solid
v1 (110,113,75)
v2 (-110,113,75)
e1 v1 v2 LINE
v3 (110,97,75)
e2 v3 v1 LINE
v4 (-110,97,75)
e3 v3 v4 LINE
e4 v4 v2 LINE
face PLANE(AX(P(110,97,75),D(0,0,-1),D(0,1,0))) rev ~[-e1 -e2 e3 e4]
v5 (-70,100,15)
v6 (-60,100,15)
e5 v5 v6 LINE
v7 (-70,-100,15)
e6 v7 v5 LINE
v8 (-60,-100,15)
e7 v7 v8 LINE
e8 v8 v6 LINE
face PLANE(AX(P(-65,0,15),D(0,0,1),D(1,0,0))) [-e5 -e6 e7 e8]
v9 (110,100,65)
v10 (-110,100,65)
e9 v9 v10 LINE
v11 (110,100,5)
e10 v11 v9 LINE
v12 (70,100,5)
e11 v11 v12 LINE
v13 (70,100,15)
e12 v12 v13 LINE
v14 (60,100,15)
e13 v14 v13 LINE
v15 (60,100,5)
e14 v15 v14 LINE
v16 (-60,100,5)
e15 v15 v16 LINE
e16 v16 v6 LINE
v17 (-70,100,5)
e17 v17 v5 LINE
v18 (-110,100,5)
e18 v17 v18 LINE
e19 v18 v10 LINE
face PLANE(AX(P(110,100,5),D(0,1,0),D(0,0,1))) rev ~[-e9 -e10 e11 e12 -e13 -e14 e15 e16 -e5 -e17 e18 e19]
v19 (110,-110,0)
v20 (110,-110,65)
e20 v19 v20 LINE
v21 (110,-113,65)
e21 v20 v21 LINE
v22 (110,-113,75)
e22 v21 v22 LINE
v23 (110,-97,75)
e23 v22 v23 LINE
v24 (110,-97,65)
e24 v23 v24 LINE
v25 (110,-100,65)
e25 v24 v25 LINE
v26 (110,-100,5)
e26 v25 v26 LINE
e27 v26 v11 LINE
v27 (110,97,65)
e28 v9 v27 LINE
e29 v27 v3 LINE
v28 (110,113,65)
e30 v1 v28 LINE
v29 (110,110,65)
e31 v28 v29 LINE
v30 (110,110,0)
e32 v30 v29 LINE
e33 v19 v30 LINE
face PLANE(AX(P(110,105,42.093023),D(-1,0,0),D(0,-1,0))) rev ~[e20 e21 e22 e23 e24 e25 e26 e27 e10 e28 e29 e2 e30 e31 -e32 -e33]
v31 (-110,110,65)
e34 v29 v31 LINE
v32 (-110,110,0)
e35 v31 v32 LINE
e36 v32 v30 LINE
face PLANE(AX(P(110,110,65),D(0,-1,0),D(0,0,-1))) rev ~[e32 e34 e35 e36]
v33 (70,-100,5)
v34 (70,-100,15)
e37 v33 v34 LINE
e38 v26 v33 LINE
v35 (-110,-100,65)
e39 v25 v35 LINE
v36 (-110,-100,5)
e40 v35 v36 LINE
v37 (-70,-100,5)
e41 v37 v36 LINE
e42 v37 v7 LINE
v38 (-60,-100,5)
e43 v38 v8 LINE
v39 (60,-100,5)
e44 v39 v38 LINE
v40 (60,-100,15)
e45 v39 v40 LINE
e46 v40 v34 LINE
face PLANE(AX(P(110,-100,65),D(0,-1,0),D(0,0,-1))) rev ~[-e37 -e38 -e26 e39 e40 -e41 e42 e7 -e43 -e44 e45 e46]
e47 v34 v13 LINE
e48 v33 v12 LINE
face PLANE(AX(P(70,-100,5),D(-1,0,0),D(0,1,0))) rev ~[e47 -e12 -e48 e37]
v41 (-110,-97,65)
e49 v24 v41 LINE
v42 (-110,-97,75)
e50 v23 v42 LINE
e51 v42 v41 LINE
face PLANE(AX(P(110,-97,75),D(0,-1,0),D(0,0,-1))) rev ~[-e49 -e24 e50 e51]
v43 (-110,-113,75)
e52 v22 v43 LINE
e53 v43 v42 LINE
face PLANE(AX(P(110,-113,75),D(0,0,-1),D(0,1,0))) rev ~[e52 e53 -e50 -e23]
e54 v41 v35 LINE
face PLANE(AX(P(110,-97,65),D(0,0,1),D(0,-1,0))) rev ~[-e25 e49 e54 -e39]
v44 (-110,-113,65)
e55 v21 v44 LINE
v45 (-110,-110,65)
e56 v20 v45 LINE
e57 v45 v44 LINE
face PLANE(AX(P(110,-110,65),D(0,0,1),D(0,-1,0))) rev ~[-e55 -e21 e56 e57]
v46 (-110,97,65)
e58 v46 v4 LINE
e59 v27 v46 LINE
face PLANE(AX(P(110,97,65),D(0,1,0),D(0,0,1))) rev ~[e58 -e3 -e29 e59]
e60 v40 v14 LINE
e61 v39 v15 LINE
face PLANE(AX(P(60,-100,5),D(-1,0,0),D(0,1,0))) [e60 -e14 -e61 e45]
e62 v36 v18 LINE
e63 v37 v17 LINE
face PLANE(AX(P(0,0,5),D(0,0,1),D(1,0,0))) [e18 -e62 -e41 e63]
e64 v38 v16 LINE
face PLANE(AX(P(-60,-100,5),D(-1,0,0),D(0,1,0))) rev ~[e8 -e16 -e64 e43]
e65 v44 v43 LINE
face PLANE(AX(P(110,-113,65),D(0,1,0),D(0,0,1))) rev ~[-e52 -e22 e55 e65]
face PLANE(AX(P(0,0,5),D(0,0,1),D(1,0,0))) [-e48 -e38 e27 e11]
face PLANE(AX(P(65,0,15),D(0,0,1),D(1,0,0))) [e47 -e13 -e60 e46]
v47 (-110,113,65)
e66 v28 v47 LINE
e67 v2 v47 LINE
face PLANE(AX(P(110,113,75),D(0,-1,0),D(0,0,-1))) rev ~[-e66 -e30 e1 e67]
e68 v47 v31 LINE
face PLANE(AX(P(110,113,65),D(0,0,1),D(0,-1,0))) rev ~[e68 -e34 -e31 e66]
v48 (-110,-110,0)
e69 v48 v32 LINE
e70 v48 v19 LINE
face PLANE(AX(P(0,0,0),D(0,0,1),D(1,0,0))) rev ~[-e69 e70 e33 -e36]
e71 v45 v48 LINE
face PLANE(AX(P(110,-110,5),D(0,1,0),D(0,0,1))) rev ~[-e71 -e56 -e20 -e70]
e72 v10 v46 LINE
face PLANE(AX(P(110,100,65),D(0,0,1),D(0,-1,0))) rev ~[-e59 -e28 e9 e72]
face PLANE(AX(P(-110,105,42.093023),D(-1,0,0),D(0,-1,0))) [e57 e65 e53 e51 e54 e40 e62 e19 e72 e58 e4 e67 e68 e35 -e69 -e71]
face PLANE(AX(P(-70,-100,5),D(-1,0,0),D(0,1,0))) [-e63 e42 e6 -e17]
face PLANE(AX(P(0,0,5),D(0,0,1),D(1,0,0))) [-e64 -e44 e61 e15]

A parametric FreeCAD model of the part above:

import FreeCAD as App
import Part
import Sketcher

V = App.Vector

doc = App.newDocument("Part")
body = doc.addObject("PartDesign::Body", "Body")

# Sketch on XY plane
sketch1 = body.newObject("Sketcher::SketchObject", "Sketch")
sketch1.AttachmentSupport = (doc.getObject("XY_Plane"), [""])
sketch1.MapMode = "FlatFace"
sketch1.addGeometry(Part.LineSegment(V(-110, 110, 0), V(-110, -110, 0)), False)
sketch1.addGeometry(Part.LineSegment(V(-110, -110, 0), V(110, -110, 0)), False)
sketch1.addGeometry(Part.LineSegment(V(110, -110, 0), V(110, 110, 0)), False)
sketch1.addGeometry(Part.LineSegment(V(110, 110, 0), V(-110, 110, 0)), False)
sketch1.addConstraint(Sketcher.Constraint("Coincident", 0, 2, 1, 1))
sketch1.addConstraint(Sketcher.Constraint("Coincident", 1, 2, 2, 1))
sketch1.addConstraint(Sketcher.Constraint("Coincident", 2, 2, 3, 1))
sketch1.addConstraint(Sketcher.Constraint("Coincident", 3, 2, 0, 1))
sketch1.addConstraint(Sketcher.Constraint("Vertical", 0))
sketch1.addConstraint(Sketcher.Constraint("Horizontal", 1))
sketch1.addConstraint(Sketcher.Constraint("Vertical", 2))
sketch1.addConstraint(Sketcher.Constraint("Horizontal", 3))
sketch1.addConstraint(Sketcher.Constraint("Symmetric", 0, 2, 2, 2, -1, 1))
sketch1.addConstraint(Sketcher.Constraint("Equal", 3, 0))
sketch1.addConstraint(Sketcher.Constraint("DistanceX", 1, 1, 1, 2, 220.0))
pad1 = body.newObject("PartDesign::Pad", "Pad")
pad1.Profile = sketch1
pad1.Length = 5

# Sketch on YZ plane
sketch2 = body.newObject("Sketcher::SketchObject", "Sketch001")
sketch2.AttachmentSupport = (doc.getObject("YZ_Plane"), [""])
sketch2.MapMode = "FlatFace"
sketch2.AttachmentOffset = App.Placement(V(0, 0, 110), App.Rotation())
sketch2.addGeometry(Part.LineSegment(V(-110, 65, 0), V(-110, 5, 0)), False)
sketch2.addGeometry(Part.LineSegment(V(-110, 5, 0), V(-100, 5, 0)), False)
sketch2.addGeometry(Part.LineSegment(V(-100, 5, 0), V(-100, 65, 0)), False)
sketch2.addGeometry(Part.LineSegment(V(-100, 65, 0), V(-97, 65, 0)), False)
sketch2.addGeometry(Part.LineSegment(V(-97, 65, 0), V(-97, 75, 0)), False)
sketch2.addGeometry(Part.LineSegment(V(-97, 75, 0), V(-113, 75, 0)), False)
sketch2.addGeometry(Part.LineSegment(V(-113, 75, 0), V(-113, 65, 0)), False)
sketch2.addGeometry(Part.LineSegment(V(-113, 65, 0), V(-110, 65, 0)), False)
sketch2.addConstraint(Sketcher.Constraint("Coincident", 0, 2, 1, 1))
sketch2.addConstraint(Sketcher.Constraint("Coincident", 1, 2, 2, 1))
sketch2.addConstraint(Sketcher.Constraint("Coincident", 2, 2, 3, 1))
sketch2.addConstraint(Sketcher.Constraint("Coincident", 3, 2, 4, 1))
sketch2.addConstraint(Sketcher.Constraint("Coincident", 4, 2, 5, 1))
sketch2.addConstraint(Sketcher.Constraint("Coincident", 5, 2, 6, 1))
sketch2.addConstraint(Sketcher.Constraint("Coincident", 6, 2, 7, 1))
sketch2.addConstraint(Sketcher.Constraint("Coincident", 7, 2, 0, 1))
sketch2.addConstraint(Sketcher.Constraint("Vertical", 0))
sketch2.addConstraint(Sketcher.Constraint("Horizontal", 1))
sketch2.addConstraint(Sketcher.Constraint("Vertical", 2))
sketch2.addConstraint(Sketcher.Constraint("Horizontal", 3))
sketch2.addConstraint(Sketcher.Constraint("Vertical", 4))
sketch2.addConstraint(Sketcher.Constraint("Horizontal", 5))
sketch2.addConstraint(Sketcher.Constraint("Vertical", 6))
sketch2.addConstraint(Sketcher.Constraint("Horizontal", 7))
sketch2.addConstraint(Sketcher.Constraint("Horizontal", 3, 2, 6, 2))
sketch2.addConstraint(Sketcher.Constraint("Equal", 3, 7))
sketch2.addConstraint(Sketcher.Constraint("Equal", 1, 4))
sketch2.addConstraint(Sketcher.Constraint("DistanceX", 1, 1, 1, 2, 10.0))
sketch2.addConstraint(Sketcher.Constraint("DistanceX", 3, 1, 3, 2, 3.0))
sketch2.addConstraint(Sketcher.Constraint("DistanceY", 0, 2, 0, 1, 60.0))
sketch2.addConstraint(Sketcher.Constraint("DistanceX", 0, 2, -1, 1, 110.0))
sketch2.addConstraint(Sketcher.Constraint("DistanceY", -1, 1, 0, 2, 5.0))
pad2 = body.newObject("PartDesign::Pad", "Pad001")
pad2.Profile = sketch2
pad2.Length = 220
pad2.Reversed = True
doc.recompute()

linearpattern = body.newObject("PartDesign::LinearPattern", "LinearPattern")
linearpattern.Originals = [pad2]
linearpattern.Direction = (doc.getObject("Y_Axis"), [""])
linearpattern.Mode = "offset"
linearpattern.Offset = 210
linearpattern.Occurrences = 2
body.Tip = linearpattern

# Sketch on XY plane
sketch3 = body.newObject("Sketcher::SketchObject", "Sketch002")
sketch3.AttachmentSupport = (doc.getObject("XY_Plane"), [""])
sketch3.MapMode = "FlatFace"
sketch3.AttachmentOffset = App.Placement(V(0, 0, 5), App.Rotation())
sketch3.addGeometry(Part.LineSegment(V(-70, 100, 0), V(-70, -100, 0)), False)
sketch3.addGeometry(Part.LineSegment(V(-70, -100, 0), V(-60, -100, 0)), False)
sketch3.addGeometry(Part.LineSegment(V(-60, -100, 0), V(-60, 100, 0)), False)
sketch3.addGeometry(Part.LineSegment(V(-60, 100, 0), V(-70, 100, 0)), False)
sketch3.addGeometry(Part.LineSegment(V(60, 100, 0), V(60, -100, 0)), False)
sketch3.addGeometry(Part.LineSegment(V(60, -100, 0), V(70, -100, 0)), False)
sketch3.addGeometry(Part.LineSegment(V(70, -100, 0), V(70, 100, 0)), False)
sketch3.addGeometry(Part.LineSegment(V(70, 100, 0), V(60, 100, 0)), False)
sketch3.addConstraint(Sketcher.Constraint("Coincident", 0, 2, 1, 1))
sketch3.addConstraint(Sketcher.Constraint("Coincident", 1, 2, 2, 1))
sketch3.addConstraint(Sketcher.Constraint("Coincident", 2, 2, 3, 1))
sketch3.addConstraint(Sketcher.Constraint("Coincident", 3, 2, 0, 1))
sketch3.addConstraint(Sketcher.Constraint("Coincident", 4, 2, 5, 1))
sketch3.addConstraint(Sketcher.Constraint("Coincident", 5, 2, 6, 1))
sketch3.addConstraint(Sketcher.Constraint("Coincident", 6, 2, 7, 1))
sketch3.addConstraint(Sketcher.Constraint("Coincident", 7, 2, 4, 1))
sketch3.addConstraint(Sketcher.Constraint("Vertical", 0))
sketch3.addConstraint(Sketcher.Constraint("Horizontal", 1))
sketch3.addConstraint(Sketcher.Constraint("Vertical", 2))
sketch3.addConstraint(Sketcher.Constraint("Horizontal", 3))
sketch3.addConstraint(Sketcher.Constraint("Vertical", 4))
sketch3.addConstraint(Sketcher.Constraint("Horizontal", 5))
sketch3.addConstraint(Sketcher.Constraint("Vertical", 6))
sketch3.addConstraint(Sketcher.Constraint("Horizontal", 7))
sketch3.addConstraint(Sketcher.Constraint("Symmetric", 2, 2, 4, 2, -1, 1))
sketch3.addConstraint(Sketcher.Constraint("Symmetric", 0, 2, 6, 2, -1, 1))
sketch3.addConstraint(Sketcher.Constraint("Horizontal", 1, 2, 4, 2))
sketch3.addConstraint(Sketcher.Constraint("DistanceX", 1, 1, 1, 2, 10.0))
sketch3.addConstraint(Sketcher.Constraint("DistanceY", 0, 2, 0, 1, 200.0))
sketch3.addConstraint(Sketcher.Constraint("DistanceX", 0, 2, -1, 1, 70.0))
pad3 = body.newObject("PartDesign::Pad", "Pad002")
pad3.Profile = sketch3
pad3.Length = 10

doc.recompute()
